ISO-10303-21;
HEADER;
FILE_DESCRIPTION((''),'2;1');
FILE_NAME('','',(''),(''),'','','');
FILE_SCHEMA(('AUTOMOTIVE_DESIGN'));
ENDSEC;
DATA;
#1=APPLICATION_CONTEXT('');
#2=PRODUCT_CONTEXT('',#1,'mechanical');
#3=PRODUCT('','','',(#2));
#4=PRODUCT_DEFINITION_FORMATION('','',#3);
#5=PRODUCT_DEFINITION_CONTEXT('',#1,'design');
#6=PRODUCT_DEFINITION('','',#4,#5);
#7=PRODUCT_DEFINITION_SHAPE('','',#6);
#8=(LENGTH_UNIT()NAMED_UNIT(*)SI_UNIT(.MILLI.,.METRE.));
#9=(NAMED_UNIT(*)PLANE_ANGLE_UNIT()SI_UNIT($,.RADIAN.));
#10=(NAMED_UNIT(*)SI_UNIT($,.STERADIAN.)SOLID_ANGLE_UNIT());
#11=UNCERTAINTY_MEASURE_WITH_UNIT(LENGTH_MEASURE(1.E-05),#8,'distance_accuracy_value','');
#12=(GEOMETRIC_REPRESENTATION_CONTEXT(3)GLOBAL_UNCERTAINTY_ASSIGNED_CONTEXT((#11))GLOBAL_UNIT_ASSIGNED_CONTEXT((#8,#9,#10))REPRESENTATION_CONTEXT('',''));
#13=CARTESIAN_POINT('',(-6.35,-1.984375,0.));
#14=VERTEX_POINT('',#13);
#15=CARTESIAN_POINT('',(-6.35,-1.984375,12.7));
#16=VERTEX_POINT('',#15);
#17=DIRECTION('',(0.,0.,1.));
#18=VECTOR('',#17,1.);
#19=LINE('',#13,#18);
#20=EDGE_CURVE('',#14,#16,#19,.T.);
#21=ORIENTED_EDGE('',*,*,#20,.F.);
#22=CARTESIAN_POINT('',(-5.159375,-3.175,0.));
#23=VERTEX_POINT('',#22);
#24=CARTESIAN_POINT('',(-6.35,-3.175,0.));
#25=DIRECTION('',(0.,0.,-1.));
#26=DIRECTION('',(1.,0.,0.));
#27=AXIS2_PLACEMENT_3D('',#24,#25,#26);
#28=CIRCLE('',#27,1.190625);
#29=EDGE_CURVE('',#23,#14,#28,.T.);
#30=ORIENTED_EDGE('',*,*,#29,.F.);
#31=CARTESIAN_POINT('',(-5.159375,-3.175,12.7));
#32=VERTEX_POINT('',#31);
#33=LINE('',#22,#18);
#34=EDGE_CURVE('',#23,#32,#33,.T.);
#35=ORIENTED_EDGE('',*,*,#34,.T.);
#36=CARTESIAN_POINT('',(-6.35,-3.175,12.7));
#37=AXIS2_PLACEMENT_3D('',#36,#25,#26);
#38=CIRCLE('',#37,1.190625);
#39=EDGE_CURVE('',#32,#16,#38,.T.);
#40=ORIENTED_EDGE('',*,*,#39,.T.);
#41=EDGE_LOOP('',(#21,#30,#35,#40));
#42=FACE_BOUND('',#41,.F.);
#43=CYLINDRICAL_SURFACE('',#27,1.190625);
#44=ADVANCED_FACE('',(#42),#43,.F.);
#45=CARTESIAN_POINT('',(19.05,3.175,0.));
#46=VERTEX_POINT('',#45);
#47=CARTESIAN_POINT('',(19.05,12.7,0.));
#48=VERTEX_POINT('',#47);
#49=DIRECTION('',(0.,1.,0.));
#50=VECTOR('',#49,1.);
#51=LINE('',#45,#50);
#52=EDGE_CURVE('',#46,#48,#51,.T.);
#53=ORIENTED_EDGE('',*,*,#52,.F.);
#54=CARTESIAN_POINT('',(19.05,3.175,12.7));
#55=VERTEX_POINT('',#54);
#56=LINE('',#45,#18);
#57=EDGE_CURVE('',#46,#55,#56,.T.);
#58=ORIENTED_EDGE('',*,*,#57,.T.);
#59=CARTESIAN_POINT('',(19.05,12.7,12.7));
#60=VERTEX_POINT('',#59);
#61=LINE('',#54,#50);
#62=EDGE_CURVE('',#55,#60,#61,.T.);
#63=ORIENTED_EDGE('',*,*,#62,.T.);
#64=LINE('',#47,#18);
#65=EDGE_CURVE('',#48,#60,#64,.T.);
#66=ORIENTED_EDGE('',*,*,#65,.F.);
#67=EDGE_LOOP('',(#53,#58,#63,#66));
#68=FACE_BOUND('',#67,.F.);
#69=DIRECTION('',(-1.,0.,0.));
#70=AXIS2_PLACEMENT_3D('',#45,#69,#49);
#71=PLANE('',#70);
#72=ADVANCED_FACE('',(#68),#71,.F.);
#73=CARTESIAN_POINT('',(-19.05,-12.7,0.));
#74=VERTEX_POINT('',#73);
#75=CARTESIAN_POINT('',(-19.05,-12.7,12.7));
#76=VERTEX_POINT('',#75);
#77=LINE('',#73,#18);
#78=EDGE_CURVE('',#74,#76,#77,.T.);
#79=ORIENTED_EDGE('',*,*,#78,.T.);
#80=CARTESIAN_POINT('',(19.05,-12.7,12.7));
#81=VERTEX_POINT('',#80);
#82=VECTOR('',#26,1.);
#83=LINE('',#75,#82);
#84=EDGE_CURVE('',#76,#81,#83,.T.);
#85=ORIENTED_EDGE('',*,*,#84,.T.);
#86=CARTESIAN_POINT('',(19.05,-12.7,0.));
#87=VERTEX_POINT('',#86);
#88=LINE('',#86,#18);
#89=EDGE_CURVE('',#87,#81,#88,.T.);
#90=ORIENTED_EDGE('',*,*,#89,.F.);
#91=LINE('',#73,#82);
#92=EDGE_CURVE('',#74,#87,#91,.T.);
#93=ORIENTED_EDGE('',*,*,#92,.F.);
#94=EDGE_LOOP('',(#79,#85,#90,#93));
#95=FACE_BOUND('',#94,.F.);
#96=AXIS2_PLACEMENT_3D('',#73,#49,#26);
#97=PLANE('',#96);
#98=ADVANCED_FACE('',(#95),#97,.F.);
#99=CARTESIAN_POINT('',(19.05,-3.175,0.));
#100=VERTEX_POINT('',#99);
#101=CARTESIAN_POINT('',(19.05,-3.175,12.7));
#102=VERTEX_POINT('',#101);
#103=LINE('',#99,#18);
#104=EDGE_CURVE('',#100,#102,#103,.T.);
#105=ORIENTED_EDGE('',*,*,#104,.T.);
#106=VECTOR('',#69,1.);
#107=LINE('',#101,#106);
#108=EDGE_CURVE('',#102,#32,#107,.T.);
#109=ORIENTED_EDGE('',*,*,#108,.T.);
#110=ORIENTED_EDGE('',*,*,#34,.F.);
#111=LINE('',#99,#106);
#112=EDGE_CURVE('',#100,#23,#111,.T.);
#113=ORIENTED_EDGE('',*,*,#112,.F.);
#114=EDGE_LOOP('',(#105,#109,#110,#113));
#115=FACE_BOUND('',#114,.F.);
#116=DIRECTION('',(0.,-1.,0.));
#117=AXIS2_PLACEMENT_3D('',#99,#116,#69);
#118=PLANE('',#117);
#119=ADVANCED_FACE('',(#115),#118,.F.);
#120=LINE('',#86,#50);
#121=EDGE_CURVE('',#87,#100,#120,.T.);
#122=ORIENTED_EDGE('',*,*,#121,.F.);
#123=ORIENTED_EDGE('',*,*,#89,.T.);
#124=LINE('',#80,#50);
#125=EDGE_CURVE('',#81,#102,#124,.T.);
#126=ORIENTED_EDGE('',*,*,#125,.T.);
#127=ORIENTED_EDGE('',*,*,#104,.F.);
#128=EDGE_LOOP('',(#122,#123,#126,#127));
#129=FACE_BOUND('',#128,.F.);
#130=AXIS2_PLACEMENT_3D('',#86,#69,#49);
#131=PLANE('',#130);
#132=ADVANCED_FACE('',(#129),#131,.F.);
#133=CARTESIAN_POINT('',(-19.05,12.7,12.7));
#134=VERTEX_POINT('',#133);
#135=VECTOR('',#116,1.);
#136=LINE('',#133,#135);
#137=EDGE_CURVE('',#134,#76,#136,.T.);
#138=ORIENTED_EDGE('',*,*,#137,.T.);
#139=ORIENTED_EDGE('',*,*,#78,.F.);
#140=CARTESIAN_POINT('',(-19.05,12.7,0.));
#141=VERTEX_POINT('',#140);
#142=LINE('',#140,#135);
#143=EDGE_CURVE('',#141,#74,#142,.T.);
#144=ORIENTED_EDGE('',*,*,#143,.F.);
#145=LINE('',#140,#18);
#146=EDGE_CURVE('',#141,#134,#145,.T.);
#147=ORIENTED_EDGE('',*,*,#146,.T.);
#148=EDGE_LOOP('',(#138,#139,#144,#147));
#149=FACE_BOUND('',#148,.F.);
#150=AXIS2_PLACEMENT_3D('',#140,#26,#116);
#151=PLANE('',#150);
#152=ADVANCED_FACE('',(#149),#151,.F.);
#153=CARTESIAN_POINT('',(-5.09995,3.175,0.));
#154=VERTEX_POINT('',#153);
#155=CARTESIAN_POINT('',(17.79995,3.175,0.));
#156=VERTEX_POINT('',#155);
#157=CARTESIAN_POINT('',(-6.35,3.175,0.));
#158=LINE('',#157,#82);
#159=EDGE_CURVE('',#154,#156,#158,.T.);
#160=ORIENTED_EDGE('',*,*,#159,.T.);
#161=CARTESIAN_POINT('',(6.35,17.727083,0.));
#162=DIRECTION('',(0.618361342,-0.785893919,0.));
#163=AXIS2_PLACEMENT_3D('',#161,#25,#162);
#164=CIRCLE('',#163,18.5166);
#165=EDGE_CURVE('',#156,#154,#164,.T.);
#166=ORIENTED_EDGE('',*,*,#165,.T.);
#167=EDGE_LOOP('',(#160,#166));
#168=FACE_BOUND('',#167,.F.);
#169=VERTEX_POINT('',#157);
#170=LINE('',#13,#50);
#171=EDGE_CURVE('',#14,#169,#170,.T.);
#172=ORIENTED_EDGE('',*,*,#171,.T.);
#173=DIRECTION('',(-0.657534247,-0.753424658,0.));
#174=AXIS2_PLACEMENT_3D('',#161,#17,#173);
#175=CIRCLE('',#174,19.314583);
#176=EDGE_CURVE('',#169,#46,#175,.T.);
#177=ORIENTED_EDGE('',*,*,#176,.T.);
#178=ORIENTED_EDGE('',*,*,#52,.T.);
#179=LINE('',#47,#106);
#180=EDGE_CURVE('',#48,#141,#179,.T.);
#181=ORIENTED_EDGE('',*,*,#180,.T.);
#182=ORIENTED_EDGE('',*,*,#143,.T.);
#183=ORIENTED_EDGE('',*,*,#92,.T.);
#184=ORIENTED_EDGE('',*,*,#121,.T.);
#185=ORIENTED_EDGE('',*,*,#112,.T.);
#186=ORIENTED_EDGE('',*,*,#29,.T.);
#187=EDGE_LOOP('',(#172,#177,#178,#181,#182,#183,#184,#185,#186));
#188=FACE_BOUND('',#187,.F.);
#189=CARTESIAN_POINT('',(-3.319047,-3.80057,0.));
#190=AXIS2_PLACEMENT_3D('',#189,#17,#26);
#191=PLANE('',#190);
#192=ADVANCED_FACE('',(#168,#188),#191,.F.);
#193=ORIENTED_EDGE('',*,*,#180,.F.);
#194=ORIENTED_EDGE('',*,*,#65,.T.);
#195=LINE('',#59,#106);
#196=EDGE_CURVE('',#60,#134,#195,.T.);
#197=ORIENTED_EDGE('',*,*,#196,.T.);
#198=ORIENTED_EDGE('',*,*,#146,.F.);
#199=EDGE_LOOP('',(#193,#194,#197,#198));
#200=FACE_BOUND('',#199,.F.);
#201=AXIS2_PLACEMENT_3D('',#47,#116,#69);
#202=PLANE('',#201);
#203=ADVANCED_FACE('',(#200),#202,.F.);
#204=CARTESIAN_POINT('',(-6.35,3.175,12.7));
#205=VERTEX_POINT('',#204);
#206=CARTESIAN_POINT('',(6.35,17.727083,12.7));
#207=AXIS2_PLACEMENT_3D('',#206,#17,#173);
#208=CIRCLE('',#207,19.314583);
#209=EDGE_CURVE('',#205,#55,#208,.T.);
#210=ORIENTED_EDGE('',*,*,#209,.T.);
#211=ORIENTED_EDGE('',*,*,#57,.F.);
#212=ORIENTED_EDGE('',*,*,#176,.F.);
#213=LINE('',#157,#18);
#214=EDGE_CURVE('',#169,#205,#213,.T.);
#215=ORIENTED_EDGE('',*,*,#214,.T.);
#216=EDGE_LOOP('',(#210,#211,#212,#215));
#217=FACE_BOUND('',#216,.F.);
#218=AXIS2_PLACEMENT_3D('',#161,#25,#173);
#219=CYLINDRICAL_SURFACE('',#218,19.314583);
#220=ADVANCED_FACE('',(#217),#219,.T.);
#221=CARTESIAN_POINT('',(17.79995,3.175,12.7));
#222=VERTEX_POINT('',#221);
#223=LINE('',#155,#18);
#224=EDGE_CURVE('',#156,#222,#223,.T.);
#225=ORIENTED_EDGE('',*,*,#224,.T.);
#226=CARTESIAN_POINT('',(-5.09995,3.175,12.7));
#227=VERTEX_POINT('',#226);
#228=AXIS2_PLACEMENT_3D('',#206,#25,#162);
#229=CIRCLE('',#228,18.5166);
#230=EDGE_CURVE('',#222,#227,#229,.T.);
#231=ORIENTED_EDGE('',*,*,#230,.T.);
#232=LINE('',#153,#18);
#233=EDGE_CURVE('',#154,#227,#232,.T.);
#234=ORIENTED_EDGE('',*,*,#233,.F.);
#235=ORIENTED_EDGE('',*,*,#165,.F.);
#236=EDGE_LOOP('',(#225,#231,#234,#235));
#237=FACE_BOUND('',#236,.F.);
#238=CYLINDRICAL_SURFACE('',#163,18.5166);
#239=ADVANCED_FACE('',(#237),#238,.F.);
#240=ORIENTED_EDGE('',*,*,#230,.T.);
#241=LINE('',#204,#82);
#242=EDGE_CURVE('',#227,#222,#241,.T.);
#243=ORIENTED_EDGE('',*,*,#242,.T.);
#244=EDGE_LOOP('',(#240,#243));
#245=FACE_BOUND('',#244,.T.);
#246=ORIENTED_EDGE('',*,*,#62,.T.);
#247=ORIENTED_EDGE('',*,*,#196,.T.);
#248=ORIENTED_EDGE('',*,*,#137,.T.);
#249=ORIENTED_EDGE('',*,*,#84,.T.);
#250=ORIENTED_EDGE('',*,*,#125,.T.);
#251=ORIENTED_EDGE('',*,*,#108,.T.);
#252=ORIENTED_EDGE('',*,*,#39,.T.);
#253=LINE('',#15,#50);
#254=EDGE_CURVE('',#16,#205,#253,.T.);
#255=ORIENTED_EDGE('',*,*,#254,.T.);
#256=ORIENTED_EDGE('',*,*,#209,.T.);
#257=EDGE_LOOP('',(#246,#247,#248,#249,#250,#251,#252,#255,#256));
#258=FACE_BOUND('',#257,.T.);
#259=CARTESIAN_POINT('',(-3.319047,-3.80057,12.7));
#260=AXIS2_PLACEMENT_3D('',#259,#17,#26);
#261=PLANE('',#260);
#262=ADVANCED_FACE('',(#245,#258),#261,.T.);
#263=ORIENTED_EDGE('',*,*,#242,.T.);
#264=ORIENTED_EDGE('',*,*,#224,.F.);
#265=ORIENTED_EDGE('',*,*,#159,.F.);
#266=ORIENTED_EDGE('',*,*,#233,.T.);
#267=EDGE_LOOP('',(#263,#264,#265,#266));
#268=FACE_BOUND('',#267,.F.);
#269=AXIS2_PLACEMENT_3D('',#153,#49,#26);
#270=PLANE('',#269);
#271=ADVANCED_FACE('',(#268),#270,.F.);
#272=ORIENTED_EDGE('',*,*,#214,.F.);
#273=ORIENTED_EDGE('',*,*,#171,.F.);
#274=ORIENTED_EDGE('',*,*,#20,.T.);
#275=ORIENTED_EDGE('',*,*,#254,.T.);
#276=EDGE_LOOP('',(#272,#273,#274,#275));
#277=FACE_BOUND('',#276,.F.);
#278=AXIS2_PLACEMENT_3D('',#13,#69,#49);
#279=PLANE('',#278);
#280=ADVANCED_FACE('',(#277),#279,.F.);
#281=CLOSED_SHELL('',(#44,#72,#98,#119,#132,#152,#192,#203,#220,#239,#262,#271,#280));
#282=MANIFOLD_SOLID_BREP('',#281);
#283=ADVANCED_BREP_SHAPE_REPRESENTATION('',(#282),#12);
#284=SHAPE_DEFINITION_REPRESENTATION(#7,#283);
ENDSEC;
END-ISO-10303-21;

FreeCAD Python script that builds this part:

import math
import FreeCAD as App
import Part
import Sketcher
Q = App.Units.Quantity

doc = App.newDocument("Part")
params = doc.addObject("Spreadsheet::Sheet", "Params")
for row, (alias, value) in enumerate([
    ("sketch1_height", "1 in"),
    ("sketch1_width", "1.5 in"),
    ("sketch1_radius", "0.046875 in"),
    ("sketch1_radius2", "0.729 in"),
    ("sketch1_height2", "0.375 in"),
    ("pad1_length", "0.5 in"),
], start=1):
    params.set(f"A{row}", alias)
    params.set(f"B{row}", "=" + value)
    params.setAlias(f"B{row}", alias)

body = doc.addObject("PartDesign::Body", "Body")

# Sketch on XY plane
sketch1 = body.newObject("Sketcher::SketchObject", "Sketch")
sketch1.AttachmentSupport = (doc.getObject("XY_Plane"), [""])
sketch1.MapMode = "FlatFace"
sketch1.addGeometry(Part.LineSegment(App.Vector(-19.05, 12.7, 0), App.Vector(-19.05, -12.7, 0)), False)
sketch1.addGeometry(Part.LineSegment(App.Vector(-19.05, -12.7, 0), App.Vector(19.05, -12.7, 0)), False)
sketch1.addGeometry(Part.LineSegment(App.Vector(19.05, -12.7, 0), App.Vector(19.05, -3.175, 0)), False)
sketch1.addGeometry(Part.LineSegment(App.Vector(19.05, -3.175, 0), App.Vector(-5.159375, -3.175, 0)), False)
sketch1.addGeometry(Part.ArcOfCircle(Part.Circle(App.Vector(-6.35, -3.175, 0), App.Vector(0, 0, 1), 1.190625), math.radians(90), math.radians(360)), False)
sketch1.addGeometry(Part.LineSegment(App.Vector(-6.35, -1.984375, 0), App.Vector(-6.35, 3.175, 0)), False)
sketch1.addGeometry(Part.ArcOfCircle(Part.Circle(App.Vector(6.35, 17.727083, 0), App.Vector(0, 0, 1), 19.314583), math.radians(-131.11209), math.radians(-48.88791)), False)
sketch1.addGeometry(Part.LineSegment(App.Vector(19.05, 3.175, 0), App.Vector(19.05, 12.7, 0)), False)
sketch1.addGeometry(Part.LineSegment(App.Vector(19.05, 12.7, 0), App.Vector(-19.05, 12.7, 0)), False)
sketch1.addGeometry(Part.LineSegment(App.Vector(-5.09995, 3.175, 0), App.Vector(17.79995, 3.175, 0)), False)
sketch1.addGeometry(Part.ArcOfCircle(Part.Circle(App.Vector(6.35, 17.727083, 0), App.Vector(0, 0, 1), 18.5166), math.radians(-128.196569), math.radians(-51.803431)), False)
sketch1.addConstraint(Sketcher.Constraint("Coincident", 0, 2, 1, 1))
sketch1.addConstraint(Sketcher.Constraint("Coincident", 1, 2, 2, 1))
sketch1.addConstraint(Sketcher.Constraint("Coincident", 2, 2, 3, 1))
sketch1.addConstraint(Sketcher.Constraint("Coincident", 3, 2, 4, 2))
sketch1.addConstraint(Sketcher.Constraint("Coincident", 4, 1, 5, 1))
sketch1.addConstraint(Sketcher.Constraint("Coincident", 5, 2, 6, 1))
sketch1.addConstraint(Sketcher.Constraint("Coincident", 6, 2, 7, 1))
sketch1.addConstraint(Sketcher.Constraint("Coincident", 7, 2, 8, 1))
sketch1.addConstraint(Sketcher.Constraint("Coincident", 8, 2, 0, 1))
sketch1.addConstraint(Sketcher.Constraint("Coincident", 9, 1, 10, 1))
sketch1.addConstraint(Sketcher.Constraint("Coincident", 10, 2, 9, 2))
sketch1.addConstraint(Sketcher.Constraint("Vertical", 0))
sketch1.addConstraint(Sketcher.Constraint("Horizontal", 1))
sketch1.addConstraint(Sketcher.Constraint("Vertical", 2))
sketch1.addConstraint(Sketcher.Constraint("Horizontal", 3))
sketch1.addConstraint(Sketcher.Constraint("Vertical", 5))
sketch1.addConstraint(Sketcher.Constraint("Vertical", 7))
sketch1.addConstraint(Sketcher.Constraint("Horizontal", 8))
sketch1.addConstraint(Sketcher.Constraint("Horizontal", 9))
sketch1.addConstraint(Sketcher.Constraint("Coincident", 10, 3, 6, 3))
sketch1.addConstraint(Sketcher.Constraint("Symmetric", 0, 2, 7, 2, -1, 1))
sketch1.addConstraint(Sketcher.Constraint("Symmetric", 2, 2, 6, 2, -1))
sketch1.addConstraint(Sketcher.Constraint("Horizontal", 4, 3, 2, 2))
sketch1.addConstraint(Sketcher.Constraint("Horizontal", 5, 2, 6, 2))
sketch1.addConstraint(Sketcher.Constraint("Horizontal", 6, 2, 9, 1))
sketch1.addConstraint(Sketcher.Constraint("DistanceY", 0, 2, 0, 1, Q("1 in")))
sketch1.addConstraint(Sketcher.Constraint("DistanceX", 1, 1, 1, 2, Q("1.5 in")))
sketch1.addConstraint(Sketcher.Constraint("Radius", 4, Q("0.046875 in")))
sketch1.addConstraint(Sketcher.Constraint("Radius", 10, Q("0.729 in")))
sketch1.addConstraint(Sketcher.Constraint("DistanceX", 0, 2, 6, 3, Q("1 in")))
sketch1.addConstraint(Sketcher.Constraint("DistanceX", 4, 3, 1, 2, Q("1 in")))
sketch1.addConstraint(Sketcher.Constraint("DistanceY", 2, 1, 2, 2, Q("0.375 in")))
sketch1.addConstraint(Sketcher.Constraint("DistanceX", 9, 1, 9, 2, 22.899899))
sketch1.setExpression("Constraints[25]", "Params.sketch1_height")
sketch1.setExpression("Constraints[26]", "Params.sketch1_width")
sketch1.setExpression("Constraints[27]", "Params.sketch1_radius")
sketch1.setExpression("Constraints[28]", "Params.sketch1_radius2")
sketch1.setExpression("Constraints[31]", "Params.sketch1_height2")
pad1 = body.newObject("PartDesign::Pad", "Pad")
pad1.Profile = sketch1
pad1.setExpression("Length", "Params.pad1_length")

doc.recompute()
